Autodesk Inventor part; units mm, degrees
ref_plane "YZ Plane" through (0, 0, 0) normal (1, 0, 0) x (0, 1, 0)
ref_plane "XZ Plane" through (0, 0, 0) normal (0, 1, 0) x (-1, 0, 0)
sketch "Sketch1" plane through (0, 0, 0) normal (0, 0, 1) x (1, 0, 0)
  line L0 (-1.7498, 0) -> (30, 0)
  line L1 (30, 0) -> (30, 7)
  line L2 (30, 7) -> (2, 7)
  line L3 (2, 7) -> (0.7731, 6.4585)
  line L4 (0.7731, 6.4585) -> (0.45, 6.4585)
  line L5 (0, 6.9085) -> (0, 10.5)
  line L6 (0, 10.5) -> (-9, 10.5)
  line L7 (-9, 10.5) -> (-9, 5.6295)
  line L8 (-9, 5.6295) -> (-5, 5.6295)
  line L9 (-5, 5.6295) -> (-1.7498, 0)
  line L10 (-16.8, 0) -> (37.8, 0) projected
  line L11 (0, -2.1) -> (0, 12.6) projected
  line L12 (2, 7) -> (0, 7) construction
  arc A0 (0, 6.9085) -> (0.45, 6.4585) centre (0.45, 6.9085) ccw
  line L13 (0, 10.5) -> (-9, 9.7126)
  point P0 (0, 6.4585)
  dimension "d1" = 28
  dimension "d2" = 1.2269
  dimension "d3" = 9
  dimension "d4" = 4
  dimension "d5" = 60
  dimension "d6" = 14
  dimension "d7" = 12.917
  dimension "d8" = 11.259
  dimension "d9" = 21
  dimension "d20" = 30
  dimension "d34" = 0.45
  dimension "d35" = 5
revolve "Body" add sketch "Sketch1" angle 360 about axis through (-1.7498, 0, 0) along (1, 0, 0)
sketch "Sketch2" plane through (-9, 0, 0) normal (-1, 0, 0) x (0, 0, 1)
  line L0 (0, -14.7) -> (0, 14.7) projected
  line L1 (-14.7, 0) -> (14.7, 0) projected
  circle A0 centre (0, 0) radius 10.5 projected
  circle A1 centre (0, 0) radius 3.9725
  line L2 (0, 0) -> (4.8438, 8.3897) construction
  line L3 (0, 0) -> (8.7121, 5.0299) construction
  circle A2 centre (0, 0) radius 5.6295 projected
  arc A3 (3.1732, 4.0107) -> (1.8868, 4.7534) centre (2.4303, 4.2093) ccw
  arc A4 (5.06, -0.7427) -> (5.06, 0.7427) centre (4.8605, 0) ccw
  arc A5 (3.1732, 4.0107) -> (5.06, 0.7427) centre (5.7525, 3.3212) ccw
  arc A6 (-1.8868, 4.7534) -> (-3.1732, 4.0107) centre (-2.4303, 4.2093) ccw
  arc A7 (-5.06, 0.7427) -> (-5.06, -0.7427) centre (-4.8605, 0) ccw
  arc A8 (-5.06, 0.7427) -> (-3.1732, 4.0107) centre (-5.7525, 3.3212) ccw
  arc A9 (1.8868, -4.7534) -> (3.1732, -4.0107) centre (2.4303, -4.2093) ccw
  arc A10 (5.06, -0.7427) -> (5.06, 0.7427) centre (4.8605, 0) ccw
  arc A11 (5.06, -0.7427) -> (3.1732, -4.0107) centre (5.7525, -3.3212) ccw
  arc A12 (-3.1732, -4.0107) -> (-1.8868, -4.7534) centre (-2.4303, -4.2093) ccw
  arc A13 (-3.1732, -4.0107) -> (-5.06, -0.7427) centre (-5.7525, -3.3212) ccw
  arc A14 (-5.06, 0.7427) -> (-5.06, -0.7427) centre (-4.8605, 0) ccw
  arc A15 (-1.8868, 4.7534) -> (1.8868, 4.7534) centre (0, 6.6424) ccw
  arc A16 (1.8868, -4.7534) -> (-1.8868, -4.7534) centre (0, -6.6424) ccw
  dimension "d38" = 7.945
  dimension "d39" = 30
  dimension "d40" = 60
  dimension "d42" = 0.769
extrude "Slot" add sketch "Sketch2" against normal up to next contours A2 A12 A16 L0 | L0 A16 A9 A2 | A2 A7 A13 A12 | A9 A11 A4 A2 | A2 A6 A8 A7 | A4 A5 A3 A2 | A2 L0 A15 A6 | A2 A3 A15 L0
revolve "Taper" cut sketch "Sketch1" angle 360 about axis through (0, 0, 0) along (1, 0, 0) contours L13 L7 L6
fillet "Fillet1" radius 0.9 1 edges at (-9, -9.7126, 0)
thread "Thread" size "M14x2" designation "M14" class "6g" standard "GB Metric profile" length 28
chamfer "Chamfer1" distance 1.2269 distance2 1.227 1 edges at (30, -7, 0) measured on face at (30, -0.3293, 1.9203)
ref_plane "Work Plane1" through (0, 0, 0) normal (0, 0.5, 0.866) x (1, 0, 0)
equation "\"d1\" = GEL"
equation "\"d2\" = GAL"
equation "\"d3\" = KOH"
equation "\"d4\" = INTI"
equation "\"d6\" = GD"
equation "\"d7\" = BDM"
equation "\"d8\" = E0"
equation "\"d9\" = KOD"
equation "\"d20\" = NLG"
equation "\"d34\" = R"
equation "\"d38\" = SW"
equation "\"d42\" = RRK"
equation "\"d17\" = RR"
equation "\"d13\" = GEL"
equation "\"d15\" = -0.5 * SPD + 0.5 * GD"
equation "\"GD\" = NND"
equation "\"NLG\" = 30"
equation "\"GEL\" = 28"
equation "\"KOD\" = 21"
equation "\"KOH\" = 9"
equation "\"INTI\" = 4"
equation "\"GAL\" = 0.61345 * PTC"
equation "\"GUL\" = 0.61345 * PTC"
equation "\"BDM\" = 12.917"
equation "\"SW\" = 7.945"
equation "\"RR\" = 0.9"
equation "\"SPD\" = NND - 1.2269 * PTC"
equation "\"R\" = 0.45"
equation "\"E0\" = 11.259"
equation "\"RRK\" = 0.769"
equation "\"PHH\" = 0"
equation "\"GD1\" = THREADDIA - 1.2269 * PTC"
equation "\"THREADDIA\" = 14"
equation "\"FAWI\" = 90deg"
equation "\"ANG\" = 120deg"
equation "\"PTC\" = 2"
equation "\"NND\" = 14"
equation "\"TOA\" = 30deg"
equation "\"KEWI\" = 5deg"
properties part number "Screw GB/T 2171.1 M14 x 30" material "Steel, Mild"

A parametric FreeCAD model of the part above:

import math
import FreeCAD as App
import Part
import Sketcher

V = App.Vector
Q = App.Units.Quantity


def edges_at(feature, points):
    """Names of the edges that pass closest to the given points."""
    edges = feature.Shape.Edges
    near = lambda p: min(range(len(edges)), key=lambda i: edges[i].distToShape(Part.Vertex(*p))[0])
    return sorted({f"Edge{near(p) + 1}" for p in points})


def add_polygon(sketch, points):
    """Adds a closed chain of lines whose ends are joined by coincident constraints."""
    first, n = sketch.GeometryCount, len(points)
    for a, b in zip(points, points[1:] + points[:1]):
        sketch.addGeometry(Part.LineSegment(App.Vector(*a, 0), App.Vector(*b, 0)), False)
    for i in range(n):
        sketch.addConstraint(Sketcher.Constraint("Coincident", first + i, 2, first + (i + 1) % n, 1))

doc = App.newDocument("Part")
params = doc.addObject("Spreadsheet::Sheet", "Params")
for row, (alias, value) in enumerate([
    ("sketch1_width", "28 mm"),
    ("sketch1_width2", "9 mm"),
    ("sketch1_width3", "4 mm"),
    ("sketch1_radius", "0.45 mm"),
    ("sketch1_height", "7 mm"),
    ("revolution_angle", "360 deg"),
    ("sketch2_radius", "2.67 mm"),
    ("sketch3_width", "9 mm"),
    ("groove_angle", "360 deg"),
    ("fillet_radius", "0.9 mm"),
    ("chamfer_size", "1.2269 mm"),
    ("chamfer_size2", "1.227 mm"),
], start=1):
    params.set(f"A{row}", alias)
    params.set(f"B{row}", "=" + value)
    params.setAlias(f"B{row}", alias)

body = doc.addObject("PartDesign::Body", "Body")

# Sketch on XY plane
sketch1 = body.newObject("Sketcher::SketchObject", "Sketch")
sketch1.AttachmentSupport = (doc.getObject("XY_Plane"), [""])
sketch1.MapMode = "FlatFace"
sketch1.addGeometry(Part.LineSegment(V(-5, 5.6295, 0), V(-1.7498, 0, 0)), False)
sketch1.addGeometry(Part.LineSegment(V(-1.7498, 0, 0), V(30, 0, 0)), False)
sketch1.addGeometry(Part.LineSegment(V(30, 0, 0), V(30, 7, 0)), False)
sketch1.addGeometry(Part.LineSegment(V(30, 7, 0), V(2, 7, 0)), False)
sketch1.addGeometry(Part.LineSegment(V(2, 7, 0), V(0.7731, 6.4585, 0)), False)
sketch1.addGeometry(Part.LineSegment(V(0.7731, 6.4585, 0), V(0.45, 6.4585, 0)), False)
sketch1.addGeometry(Part.ArcOfCircle(Part.Circle(V(0.45, 6.9085, 0), V(0, 0, 1), 0.45), math.radians(180), math.radians(270)), False)
sketch1.addGeometry(Part.LineSegment(V(0, 6.9085, 0), V(0, 10.5, 0)), False)
sketch1.addGeometry(Part.LineSegment(V(0, 10.5, 0), V(-9, 10.5, 0)), False)
sketch1.addGeometry(Part.LineSegment(V(-9, 10.5, 0), V(-9, 5.6295, 0)), False)
sketch1.addGeometry(Part.LineSegment(V(-9, 5.6295, 0), V(-5, 5.6295, 0)), False)
sketch1.addConstraint(Sketcher.Constraint("Coincident", 0, 2, 1, 1))
sketch1.addConstraint(Sketcher.Constraint("Coincident", 1, 2, 2, 1))
sketch1.addConstraint(Sketcher.Constraint("Coincident", 2, 2, 3, 1))
sketch1.addConstraint(Sketcher.Constraint("Coincident", 3, 2, 4, 1))
sketch1.addConstraint(Sketcher.Constraint("Coincident", 4, 2, 5, 1))
sketch1.addConstraint(Sketcher.Constraint("Tangent", 5, 2, 6, 2))
sketch1.addConstraint(Sketcher.Constraint("Tangent", 6, 1, 7, 1))
sketch1.addConstraint(Sketcher.Constraint("Coincident", 7, 2, 8, 1))
sketch1.addConstraint(Sketcher.Constraint("Coincident", 8, 2, 9, 1))
sketch1.addConstraint(Sketcher.Constraint("Coincident", 9, 2, 10, 1))
sketch1.addConstraint(Sketcher.Constraint("Coincident", 10, 2, 0, 1))
sketch1.addConstraint(Sketcher.Constraint("Horizontal", 1))
sketch1.addConstraint(Sketcher.Constraint("Vertical", 2))
sketch1.addConstraint(Sketcher.Constraint("Horizontal", 3))
sketch1.addConstraint(Sketcher.Constraint("Horizontal", 5))
sketch1.addConstraint(Sketcher.Constraint("Vertical", 7))
sketch1.addConstraint(Sketcher.Constraint("Horizontal", 8))
sketch1.addConstraint(Sketcher.Constraint("Vertical", 9))
sketch1.addConstraint(Sketcher.Constraint("Horizontal", 10))
sketch1.addConstraint(Sketcher.Constraint("PointOnObject", 0, 2, -1))
sketch1.addConstraint(Sketcher.Constraint("PointOnObject", 6, 1, -2))
sketch1.addConstraint(Sketcher.Constraint("DistanceX", 3, 2, 3, 1, 28.0))
sketch1.addConstraint(Sketcher.Constraint("DistanceX", 8, 2, 8, 1, 9.0))
sketch1.addConstraint(Sketcher.Constraint("DistanceX", 10, 1, 10, 2, 4.0))
sketch1.addConstraint(Sketcher.Constraint("Angle", 0, Q("-60 deg")))
sketch1.addConstraint(Sketcher.Constraint("Radius", 6, 0.45))
sketch1.addConstraint(Sketcher.Constraint("DistanceX", -1, 1, 1, 2, 30.0))
sketch1.addConstraint(Sketcher.Constraint("DistanceY", 2, 1, 2, 2, 7.0))
sketch1.addConstraint(Sketcher.Constraint("DistanceX", 4, 2, 3, 2, 1.227))
sketch1.addConstraint(Sketcher.Constraint("DistanceY", -1, 1, 7, 2, 10.5))
sketch1.addConstraint(Sketcher.Constraint("Distance", 4, 1.341))
sketch1.addConstraint(Sketcher.Constraint("DistanceX", 1, 1, 1, 2, 31.7498))
sketch1.setExpression("Constraints[21]", "Params.sketch1_width")
sketch1.setExpression("Constraints[22]", "Params.sketch1_width2")
sketch1.setExpression("Constraints[23]", "Params.sketch1_width3")
sketch1.setExpression("Constraints[25]", "Params.sketch1_radius")
sketch1.setExpression("Constraints[27]", "Params.sketch1_height")
revolution = body.newObject("PartDesign::Revolution", "Revolution")
revolution.Profile = sketch1
revolution.ReferenceAxis = (sketch1, ["H_Axis"])
revolution.setExpression("Angle", "Params.revolution_angle")

# Sketch on YZ plane
sketch2 = body.newObject("Sketcher::SketchObject", "Sketch001")
sketch2.AttachmentSupport = (doc.getObject("YZ_Plane"), [""])
sketch2.MapMode = "FlatFace"
sketch2.AttachmentOffset = App.Placement(V(0, 0, -9), App.Rotation())
sketch2.addGeometry(Part.ArcOfCircle(Part.Circle(V(0, 0, 0), V(0, 0, 1), 5.6295), math.radians(149.999768), math.radians(210.000232)), False)
sketch2.addGeometry(Part.ArcOfCircle(Part.Circle(V(-4.2093, 2.4303, 0), V(0, 0, 1), 0.769049), math.radians(150.002143), math.radians(224.968391)), False)
sketch2.addGeometry(Part.ArcOfCircle(Part.Circle(V(-6.6424, 0, 0), V(0, 0, 1), 2.669894), math.radians(-44.966616), math.radians(44.966616)), False)
sketch2.addGeometry(Part.ArcOfCircle(Part.Circle(V(-4.2093, -2.4303, 0), V(0, 0, 1), 0.768988), math.radians(135.031609), math.radians(209.997856)), False)
sketch2.addGeometry(Part.ArcOfCircle(Part.Circle(V(0, 0, 0), V(0, 0, 1), 5.6295), math.radians(-149.999768), math.radians(-90)), False)
sketch2.addGeometry(Part.ArcOfCircle(Part.Circle(V(-4.2093, -2.4303, 0), V(0, 0, 1), 0.768988), math.radians(-150.002144), math.radians(-75.033067)), False)
sketch2.addGeometry(Part.ArcOfCircle(Part.Circle(V(-3.3212, -5.7525, 0), V(0, 0, 1), 2.669869), math.radians(15.033021), math.radians(104.966391)), False)
sketch2.addGeometry(Part.ArcOfCircle(Part.Circle(V(0, -4.8605, 0), V(0, 0, 1), 0.769028), math.radians(-164.964439), math.radians(-90)), False)
sketch2.addGeometry(Part.ArcOfCircle(Part.Circle(V(-4.2093, 2.4303, 0), V(0, 0, 1), 0.769049), math.radians(75.033067), math.radians(150.002143)), False)
sketch2.addGeometry(Part.ArcOfCircle(Part.Circle(V(0, 0, 0), V(0, 0, 1), 5.6295), math.radians(90), math.radians(149.999768)), False)
sketch2.addGeometry(Part.ArcOfCircle(Part.Circle(V(0, 4.8605, 0), V(0, 0, 1), 0.769028), math.radians(90), math.radians(164.964439)), False)
sketch2.addGeometry(Part.ArcOfCircle(Part.Circle(V(-3.3212, 5.7525, 0), V(0, 0, 1), 2.669872), math.radians(-104.966391), math.radians(-15.033021)), False)
sketch2.addGeometry(Part.ArcOfCircle(Part.Circle(V(0, 0, 0), V(0, 0, 1), 5.6295), math.radians(-90), math.radians(-30.000232)), False)
sketch2.addGeometry(Part.ArcOfCircle(Part.Circle(V(0, -4.8605, 0), V(0, 0, 1), 0.769028), math.radians(-90), math.radians(-15.035561)), False)
sketch2.addGeometry(Part.ArcOfCircle(Part.Circle(V(3.3212, -5.7525, 0), V(0, 0, 1), 2.669872), math.radians(75.033609), math.radians(164.966979)), False)
sketch2.addGeometry(Part.ArcOfCircle(Part.Circle(V(4.2093, -2.4303, 0), V(0, 0, 1), 0.769049), math.radians(-104.966933), math.radians(-29.997857)), False)
sketch2.addGeometry(Part.ArcOfCircle(Part.Circle(V(0, 4.8605, 0), V(0, 0, 1), 0.769028), math.radians(15.035561), math.radians(90)), False)
sketch2.addGeometry(Part.ArcOfCircle(Part.Circle(V(0, 0, 0), V(0, 0, 1), 5.6295), math.radians(30.000232), math.radians(90)), False)
sketch2.addGeometry(Part.ArcOfCircle(Part.Circle(V(4.2093, 2.4303, 0), V(0, 0, 1), 0.768988), math.radians(29.997855), math.radians(104.966933)), False)
sketch2.addGeometry(Part.ArcOfCircle(Part.Circle(V(3.3212, 5.7525, 0), V(0, 0, 1), 2.669869), math.radians(-164.966979), math.radians(-75.033609)), False)
sketch2.addGeometry(Part.ArcOfCircle(Part.Circle(V(4.2093, -2.4303, 0), V(0, 0, 1), 0.769049), math.radians(-29.997857), math.radians(44.968391)), False)
sketch2.addGeometry(Part.ArcOfCircle(Part.Circle(V(6.6424, 0, 0), V(0, 0, 1), 2.669894), math.radians(135.033384), math.radians(224.966616)), False)
sketch2.addGeometry(Part.ArcOfCircle(Part.Circle(V(4.2093, 2.4303, 0), V(0, 0, 1), 0.768988), math.radians(-44.968391), math.radians(29.997855)), False)
sketch2.addGeometry(Part.ArcOfCircle(Part.Circle(V(0, 0, 0), V(0, 0, 1), 5.6295), math.radians(-30.000232), math.radians(30.000232)), False)
sketch2.addConstraint(Sketcher.Constraint("Tangent", 0, 1, 1, 1))
sketch2.addConstraint(Sketcher.Constraint("Tangent", 1, 2, 2, 2))
sketch2.addConstraint(Sketcher.Constraint("Tangent", 2, 1, 3, 1))
sketch2.addConstraint(Sketcher.Constraint("Tangent", 3, 2, 0, 2))
sketch2.addConstraint(Sketcher.Constraint("Tangent", 4, 1, 5, 1))
sketch2.addConstraint(Sketcher.Constraint("Tangent", 5, 2, 6, 2))
sketch2.addConstraint(Sketcher.Constraint("Tangent", 6, 1, 7, 1))
sketch2.addConstraint(Sketcher.Constraint("Tangent", 7, 2, 4, 2))
sketch2.addConstraint(Sketcher.Constraint("Tangent", 8, 2, 9, 2))
sketch2.addConstraint(Sketcher.Constraint("Tangent", 9, 1, 10, 1))
sketch2.addConstraint(Sketcher.Constraint("Tangent", 10, 2, 11, 2))
sketch2.addConstraint(Sketcher.Constraint("Tangent", 11, 1, 8, 1))
sketch2.addConstraint(Sketcher.Constraint("Tangent", 12, 1, 13, 1))
sketch2.addConstraint(Sketcher.Constraint("Tangent", 13, 2, 14, 2))
sketch2.addConstraint(Sketcher.Constraint("Tangent", 14, 1, 15, 1))
sketch2.addConstraint(Sketcher.Constraint("Tangent", 15, 2, 12, 2))
sketch2.addConstraint(Sketcher.Constraint("Tangent", 16, 2, 17, 2))
sketch2.addConstraint(Sketcher.Constraint("Tangent", 17, 1, 18, 1))
sketch2.addConstraint(Sketcher.Constraint("Tangent", 18, 2, 19, 2))
sketch2.addConstraint(Sketcher.Constraint("Tangent", 19, 1, 16, 1))
sketch2.addConstraint(Sketcher.Constraint("Tangent", 20, 2, 21, 2))
sketch2.addConstraint(Sketcher.Constraint("Tangent", 21, 1, 22, 1))
sketch2.addConstraint(Sketcher.Constraint("Tangent", 22, 2, 23, 2))
sketch2.addConstraint(Sketcher.Constraint("Tangent", 23, 1, 20, 1))
sketch2.addConstraint(Sketcher.Constraint("Coincident", 0, 3, -1, 1))
sketch2.addConstraint(Sketcher.Constraint("Coincident", 4, 3, -1, 1))
sketch2.addConstraint(Sketcher.Constraint("Coincident", 9, 3, -1, 1))
sketch2.addConstraint(Sketcher.Constraint("Coincident", 12, 3, -1, 1))
sketch2.addConstraint(Sketcher.Constraint("Coincident", 17, 3, -1, 1))
sketch2.addConstraint(Sketcher.Constraint("Coincident", 23, 3, -1, 1))
sketch2.addConstraint(Sketcher.Constraint("Coincident", 5, 3, 3, 3))
sketch2.addConstraint(Sketcher.Constraint("Coincident", 8, 3, 1, 3))
sketch2.addConstraint(Sketcher.Constraint("Coincident", 13, 3, 7, 3))
sketch2.addConstraint(Sketcher.Constraint("Coincident", 16, 3, 10, 3))
sketch2.addConstraint(Sketcher.Constraint("Coincident", 20, 3, 15, 3))
sketch2.addConstraint(Sketcher.Constraint("Coincident", 22, 3, 18, 3))
sketch2.addConstraint(Sketcher.Constraint("Equal", 1, 3))
sketch2.addConstraint(Sketcher.Constraint("Equal", 0, 4))
sketch2.addConstraint(Sketcher.Constraint("Equal", 2, 6))
sketch2.addConstraint(Sketcher.Constraint("Equal", 5, 7))
sketch2.addConstraint(Sketcher.Constraint("Equal", 7, 8))
sketch2.addConstraint(Sketcher.Constraint("Equal", 8, 10))
sketch2.addConstraint(Sketcher.Constraint("Equal", 6, 11))
sketch2.addConstraint(Sketcher.Constraint("Equal", 9, 12))
sketch2.addConstraint(Sketcher.Constraint("Equal", 11, 14))
sketch2.addConstraint(Sketcher.Constraint("Equal", 13, 15))
sketch2.addConstraint(Sketcher.Constraint("Equal", 15, 16))
sketch2.addConstraint(Sketcher.Constraint("Equal", 16, 18))
sketch2.addConstraint(Sketcher.Constraint("Equal", 14, 19))
sketch2.addConstraint(Sketcher.Constraint("Equal", 18, 20))
sketch2.addConstraint(Sketcher.Constraint("Equal", 19, 21))
sketch2.addConstraint(Sketcher.Constraint("Symmetric", 11, 3, 14, 3, -1, 1))
sketch2.addConstraint(Sketcher.Constraint("Symmetric", 6, 3, 14, 3, -2))
sketch2.addConstraint(Sketcher.Constraint("PointOnObject", 21, 3, -1))
sketch2.addConstraint(Sketcher.Constraint("Radius", 1, 0.769))
sketch2.addConstraint(Sketcher.Constraint("Radius", 2, 2.67))
sketch2.addConstraint(Sketcher.Constraint("Radius", 0, 5.6295))
sketch2.addConstraint(Sketcher.Constraint("DistanceY", 6, 1, -1, 1, 5.06))
sketch2.setExpression("Constraints[55]", "Params.sketch2_radius")
pad1 = body.newObject("PartDesign::Pad", "Pad")
pad1.Profile = sketch2
pad1.Type = "UpToFirst"

# Sketch on XY plane
sketch3 = body.newObject("Sketcher::SketchObject", "Sketch002")
sketch3.AttachmentSupport = (doc.getObject("XY_Plane"), [""])
sketch3.MapMode = "FlatFace"
add_polygon(sketch3, [(-9, 9.7126), (0, 10.5), (-9, 10.5)])  # lines 0-2
sketch3.addConstraint(Sketcher.Constraint("Horizontal", 1))
sketch3.addConstraint(Sketcher.Constraint("Vertical", 2))
sketch3.addConstraint(Sketcher.Constraint("PointOnObject", 0, 2, -2))
sketch3.addConstraint(Sketcher.Constraint("DistanceX", 1, 2, 1, 1, 9.0))
sketch3.addConstraint(Sketcher.Constraint("Angle", 0, Q("5 deg")))
sketch3.addConstraint(Sketcher.Constraint("DistanceY", -1, 1, 0, 2, 10.5))
sketch3.setExpression("Constraints[6]", "Params.sketch3_width")
groove = body.newObject("PartDesign::Groove", "Groove")
groove.Profile = sketch3
groove.ReferenceAxis = (sketch3, ["H_Axis"])
groove.setExpression("Angle", "Params.groove_angle")
doc.recompute()

fillet = body.newObject("PartDesign::Fillet", "Fillet")
fillet.Base = (groove, edges_at(groove, [(-9, -9.713, 0)]))
fillet.setExpression("Radius", "Params.fillet_radius")
doc.recompute()

chamfer = body.newObject("PartDesign::Chamfer", "Chamfer")
chamfer.Base = (fillet, edges_at(fillet, [(30, -7, 0)]))
chamfer.ChamferType = "Two distances"
chamfer.setExpression("Size", "Params.chamfer_size")
chamfer.setExpression("Size2", "Params.chamfer_size2")

doc.recompute()
